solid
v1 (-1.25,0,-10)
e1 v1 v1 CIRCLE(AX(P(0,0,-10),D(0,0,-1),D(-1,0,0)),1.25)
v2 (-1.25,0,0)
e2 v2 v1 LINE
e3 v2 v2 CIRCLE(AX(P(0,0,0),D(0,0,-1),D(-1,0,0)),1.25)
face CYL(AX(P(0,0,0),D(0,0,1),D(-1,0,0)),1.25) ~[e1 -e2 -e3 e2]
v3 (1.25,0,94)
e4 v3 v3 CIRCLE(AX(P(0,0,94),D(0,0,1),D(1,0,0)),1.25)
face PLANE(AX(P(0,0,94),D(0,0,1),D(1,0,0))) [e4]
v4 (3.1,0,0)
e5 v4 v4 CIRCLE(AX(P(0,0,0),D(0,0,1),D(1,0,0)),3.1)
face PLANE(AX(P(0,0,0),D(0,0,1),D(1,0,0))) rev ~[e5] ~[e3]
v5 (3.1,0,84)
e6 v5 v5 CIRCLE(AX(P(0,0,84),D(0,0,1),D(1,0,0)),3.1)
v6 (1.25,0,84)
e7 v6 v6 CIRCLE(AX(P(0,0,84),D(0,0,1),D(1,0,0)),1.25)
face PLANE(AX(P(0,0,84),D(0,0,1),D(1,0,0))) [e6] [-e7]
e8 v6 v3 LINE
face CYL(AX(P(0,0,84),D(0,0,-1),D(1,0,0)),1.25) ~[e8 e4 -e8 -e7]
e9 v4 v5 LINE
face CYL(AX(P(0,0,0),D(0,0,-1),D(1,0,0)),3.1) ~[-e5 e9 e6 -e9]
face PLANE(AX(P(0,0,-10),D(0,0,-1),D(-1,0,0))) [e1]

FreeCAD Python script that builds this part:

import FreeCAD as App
import Part
import Sketcher
from FreeCAD import Vector
Q = App.Units.Quantity

doc = App.newDocument("Part")
body = doc.addObject("PartDesign::Body", "Body")

# Sketch on XY plane
sketch1 = body.newObject("Sketcher::SketchObject", "Sketch")
sketch1.AttachmentSupport = (doc.getObject("XY_Plane"), [""])
sketch1.MapMode = "FlatFace"
sketch1.addGeometry(Part.Circle(Vector(0, 0, 0), Vector(0, 0, 1), 3.1), False)
sketch1.addConstraint(Sketcher.Constraint("Coincident", 0, 3, -1, 1))
sketch1.addConstraint(Sketcher.Constraint("Diameter", 0, Q("6.2 mm")))
pad1 = body.newObject("PartDesign::Pad", "Pad")
pad1.Profile = sketch1
pad1.Length = 84

# Sketch on XY plane
sketch2 = body.newObject("Sketcher::SketchObject", "Sketch001")
sketch2.AttachmentSupport = (doc.getObject("XY_Plane"), [""])
sketch2.MapMode = "FlatFace"
sketch2.AttachmentOffset = App.Placement(Vector(0, 0, 84), App.Rotation())
sketch2.addGeometry(Part.Circle(Vector(0, 0, 0), Vector(0, 0, 1), 1.2), False)
sketch2.addConstraint(Sketcher.Constraint("Coincident", 0, 3, -1, 1))
sketch2.addConstraint(Sketcher.Constraint("Diameter", 0, Q("2.5 mm")))
pad2 = body.newObject("PartDesign::Pad", "Pad001")
pad2.Profile = sketch2
pad2.Length = 10

# Sketch on XY plane
sketch3 = body.newObject("Sketcher::SketchObject", "Sketch002")
sketch3.AttachmentSupport = (doc.getObject("XY_Plane"), [""])
sketch3.MapMode = "FlatFace"
sketch3.addGeometry(Part.Circle(Vector(0, 0, 0), Vector(0, 0, 1), 1.2), False)
sketch3.addConstraint(Sketcher.Constraint("Coincident", 0, 3, -1, 1))
sketch3.addConstraint(Sketcher.Constraint("Diameter", 0, Q("2.5 mm")))
pad3 = body.newObject("PartDesign::Pad", "Pad002")
pad3.Profile = sketch3
pad3.Length = 10
pad3.Reversed = True

doc.recompute()
